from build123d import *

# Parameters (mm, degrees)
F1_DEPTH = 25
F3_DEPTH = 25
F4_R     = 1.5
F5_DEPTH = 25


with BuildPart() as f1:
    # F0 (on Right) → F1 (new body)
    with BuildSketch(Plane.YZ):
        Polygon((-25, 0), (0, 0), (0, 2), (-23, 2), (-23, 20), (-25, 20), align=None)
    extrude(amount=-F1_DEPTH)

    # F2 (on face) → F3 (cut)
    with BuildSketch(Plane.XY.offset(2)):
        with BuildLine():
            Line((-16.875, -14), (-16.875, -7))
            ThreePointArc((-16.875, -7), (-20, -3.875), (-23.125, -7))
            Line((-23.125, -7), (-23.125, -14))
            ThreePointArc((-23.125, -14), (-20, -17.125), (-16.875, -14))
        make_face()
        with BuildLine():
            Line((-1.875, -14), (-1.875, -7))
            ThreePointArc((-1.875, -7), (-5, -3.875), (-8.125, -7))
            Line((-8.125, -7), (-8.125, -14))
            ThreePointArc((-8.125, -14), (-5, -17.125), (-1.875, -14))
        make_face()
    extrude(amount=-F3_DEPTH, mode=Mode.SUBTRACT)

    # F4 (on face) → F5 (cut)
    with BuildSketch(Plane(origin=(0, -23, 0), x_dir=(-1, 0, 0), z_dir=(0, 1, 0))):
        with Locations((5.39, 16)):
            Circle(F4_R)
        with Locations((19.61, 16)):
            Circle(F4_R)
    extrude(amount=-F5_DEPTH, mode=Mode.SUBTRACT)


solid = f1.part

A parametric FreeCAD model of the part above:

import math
import FreeCAD as App
import Part
import Sketcher
Q = App.Units.Quantity

doc = App.newDocument("Part")
body = doc.addObject("PartDesign::Body", "Body")

# Sketch on YZ plane
sketch1 = body.newObject("Sketcher::SketchObject", "Sketch")
sketch1.AttachmentSupport = (doc.getObject("YZ_Plane"), [""])
sketch1.MapMode = "FlatFace"
sketch1.addGeometry([
    Part.LineSegment(App.Vector(-25, 0, 0), App.Vector(0, 0, 0)),  # 0
    Part.LineSegment(App.Vector(0, 0, 0), App.Vector(0, 2, 0)),  # 1
    Part.LineSegment(App.Vector(0, 2, 0), App.Vector(-23, 2, 0)),  # 2
    Part.LineSegment(App.Vector(-23, 2, 0), App.Vector(-23, 20, 0)),  # 3
    Part.LineSegment(App.Vector(-23, 20, 0), App.Vector(-25, 20, 0)),  # 4
    Part.LineSegment(App.Vector(-25, 20, 0), App.Vector(-25, 0, 0)),  # 5
], False)
sketch1.addConstraint([
    Sketcher.Constraint("Coincident", 0, 2, 1, 1),
    Sketcher.Constraint("Coincident", 1, 2, 2, 1),
    Sketcher.Constraint("Coincident", 2, 2, 3, 1),
    Sketcher.Constraint("Coincident", 3, 2, 4, 1),
    Sketcher.Constraint("Coincident", 4, 2, 5, 1),
    Sketcher.Constraint("Coincident", 5, 2, 0, 1),
    Sketcher.Constraint("Horizontal", 0),
    Sketcher.Constraint("Vertical", 1),
    Sketcher.Constraint("Horizontal", 2),
    Sketcher.Constraint("Vertical", 3),
    Sketcher.Constraint("Horizontal", 4),
    Sketcher.Constraint("Vertical", 5),
    Sketcher.Constraint("Coincident", 0, 2, -1, 1),
    Sketcher.Constraint("Equal", 4, 1),
    Sketcher.Constraint("DistanceX", 0, 1, 0, 2, Q("25 mm")),
    Sketcher.Constraint("DistanceX", 2, 2, 2, 1, Q("23 mm")),
    Sketcher.Constraint("DistanceY", 3, 1, 3, 2, Q("18 mm")),
])
pad1 = body.newObject("PartDesign::Pad", "Pad")
pad1.Profile = sketch1
pad1.Length = 25
pad1.Reversed = True

# Sketch on XY plane
sketch2 = body.newObject("Sketcher::SketchObject", "Sketch001")
sketch2.AttachmentSupport = (doc.getObject("XY_Plane"), [""])
sketch2.MapMode = "FlatFace"
sketch2.AttachmentOffset = App.Placement(App.Vector(0, 0, 2), App.Rotation())
sketch2.addGeometry([
    Part.LineSegment(App.Vector(-16.9, -14, 0), App.Vector(-16.9, -7, 0)),  # 0
    Part.ArcOfCircle(Part.Circle(App.Vector(-20, -7, 0), App.Vector(0, 0, 1), 3.1), math.radians(0), math.radians(180)),  # 1
    Part.LineSegment(App.Vector(-23.1, -7, 0), App.Vector(-23.1, -14, 0)),  # 2
    Part.ArcOfCircle(Part.Circle(App.Vector(-20, -14, 0), App.Vector(0, 0, 1), 3.1), math.radians(180), math.radians(360)),  # 3
    Part.LineSegment(App.Vector(-1.9, -14, 0), App.Vector(-1.9, -7, 0)),  # 4
    Part.ArcOfCircle(Part.Circle(App.Vector(-5, -7, 0), App.Vector(0, 0, 1), 3.1), math.radians(0), math.radians(180)),  # 5
    Part.LineSegment(App.Vector(-8.1, -7, 0), App.Vector(-8.1, -14, 0)),  # 6
    Part.ArcOfCircle(Part.Circle(App.Vector(-5, -14, 0), App.Vector(0, 0, 1), 3.1), math.radians(180), math.radians(360)),  # 7
], False)
sketch2.addConstraint([
    Sketcher.Constraint("Tangent", 0, 2, 1, 1),
    Sketcher.Constraint("Tangent", 1, 2, 2, 1),
    Sketcher.Constraint("Tangent", 2, 2, 3, 1),
    Sketcher.Constraint("Tangent", 3, 2, 0, 1),
    Sketcher.Constraint("Tangent", 4, 2, 5, 1),
    Sketcher.Constraint("Tangent", 5, 2, 6, 1),
    Sketcher.Constraint("Tangent", 6, 2, 7, 1),
    Sketcher.Constraint("Tangent", 7, 2, 4, 1),
    Sketcher.Constraint("Vertical", 0),
    Sketcher.Constraint("Vertical", 2),
    Sketcher.Constraint("Vertical", 4),
    Sketcher.Constraint("Vertical", 6),
    Sketcher.Constraint("Equal", 3, 5),
    Sketcher.Constraint("Horizontal", 1, 3, 5, 3),
    Sketcher.Constraint("Horizontal", 3, 3, 7, 3),
    Sketcher.Constraint("DistanceY", 0, 1, 0, 2, Q("7 mm")),
    Sketcher.Constraint("DistanceX", 1, 3, -1, 1, Q("20 mm")),
    Sketcher.Constraint("DistanceY", 1, 3, -1, 1, Q("7 mm")),
    Sketcher.Constraint("DistanceX", 5, 3, -1, 1, Q("5 mm")),
    Sketcher.Constraint("Radius", 1, Q("3.125 mm")),
])
pocket1 = body.newObject("PartDesign::Pocket", "Pocket")
pocket1.Profile = sketch2
pocket1.Length = 25

# Sketch on XZ plane
sketch3 = body.newObject("Sketcher::SketchObject", "Sketch002")
sketch3.AttachmentSupport = (doc.getObject("XZ_Plane"), [""])
sketch3.MapMode = "FlatFace"
sketch3.AttachmentOffset = App.Placement(App.Vector(0, 0, 23), App.Rotation())
sketch3.addGeometry([
    Part.Circle(App.Vector(-5.4, 16, 0), App.Vector(0, 0, 1), 1.5),
    Part.Circle(App.Vector(-19.6, 16, 0), App.Vector(0, 0, 1), 1.5),
], False)
sketch3.addConstraint([
    Sketcher.Constraint("Equal", 0, 1),
    Sketcher.Constraint("Horizontal", 0, 3, 1, 3),
    Sketcher.Constraint("Diameter", 0, Q("3 mm")),
    Sketcher.Constraint("DistanceY", -1, 1, 0, 3, Q("16 mm")),
    Sketcher.Constraint("DistanceX", 0, 3, -1, 1, Q("5.39 mm")),
    Sketcher.Constraint("DistanceX", 1, 3, -1, 1, Q("19.61 mm")),
])
pocket2 = body.newObject("PartDesign::Pocket", "Pocket001")
pocket2.Profile = sketch3
pocket2.Length = 25
pocket2.Reversed = True

doc.recompute()
